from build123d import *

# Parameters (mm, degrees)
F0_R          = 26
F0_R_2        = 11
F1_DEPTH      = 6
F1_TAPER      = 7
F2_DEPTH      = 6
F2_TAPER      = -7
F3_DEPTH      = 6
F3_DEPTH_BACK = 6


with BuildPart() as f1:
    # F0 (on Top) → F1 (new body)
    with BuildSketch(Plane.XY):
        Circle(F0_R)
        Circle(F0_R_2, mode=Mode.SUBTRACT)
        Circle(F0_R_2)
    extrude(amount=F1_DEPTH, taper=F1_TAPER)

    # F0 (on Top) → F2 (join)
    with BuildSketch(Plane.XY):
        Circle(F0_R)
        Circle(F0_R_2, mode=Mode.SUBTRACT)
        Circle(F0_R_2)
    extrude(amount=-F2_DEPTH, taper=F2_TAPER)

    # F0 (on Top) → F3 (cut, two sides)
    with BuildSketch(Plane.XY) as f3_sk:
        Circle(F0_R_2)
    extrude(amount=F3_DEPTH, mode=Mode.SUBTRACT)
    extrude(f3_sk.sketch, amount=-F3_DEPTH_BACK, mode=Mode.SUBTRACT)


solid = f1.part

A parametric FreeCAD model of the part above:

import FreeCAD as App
import Part
import Sketcher
Q = App.Units.Quantity

doc = App.newDocument("Part")
params = doc.addObject("Spreadsheet::Sheet", "Params")
for row, (alias, value) in enumerate([
    ("sketch1_diameter", "52 mm"),
    ("pad1_length", "6 mm"),
    ("pad1_taper", "-7 deg"),
    ("sketch2_diameter", "52 mm"),
    ("pad2_length", "6 mm"),
    ("pad2_taper", "7 deg"),
    ("sketch3_diameter", "22 mm"),
], start=1):
    params.set(f"A{row}", alias)
    params.set(f"B{row}", "=" + value)
    params.setAlias(f"B{row}", alias)

body = doc.addObject("PartDesign::Body", "Body")

# Sketch on XY plane
sketch1 = doc.addObject("Sketcher::SketchObject", "Sketch")
body.addObject(sketch1)
sketch1.AttachmentSupport = (doc.XY_Plane, [""])
sketch1.MapMode = "FlatFace"
sketch1.addGeometry(Part.Circle(App.Vector(0, 0, 0), App.Vector(0, 0, 1), 26), False)
sketch1.addConstraint([
    Sketcher.Constraint("Coincident", 0, 3, -1, 1),
    Sketcher.Constraint("Diameter", 0, Q("52 mm")),
])
sketch1.setExpression("Constraints[1]", "Params.sketch1_diameter")
pad1 = doc.addObject("PartDesign::Pad", "Pad")
body.addObject(pad1)
pad1.Profile = sketch1
pad1.setExpression("Length", "Params.pad1_length")
pad1.setExpression("TaperAngle", "Params.pad1_taper")

# Sketch on XY plane
sketch2 = doc.addObject("Sketcher::SketchObject", "Sketch001")
body.addObject(sketch2)
sketch2.AttachmentSupport = (doc.XY_Plane, [""])
sketch2.MapMode = "FlatFace"
sketch2.addGeometry(Part.Circle(App.Vector(0, 0, 0), App.Vector(0, 0, 1), 26), False)
sketch2.addConstraint([
    Sketcher.Constraint("Coincident", 0, 3, -1, 1),
    Sketcher.Constraint("Diameter", 0, Q("52 mm")),
])
sketch2.setExpression("Constraints[1]", "Params.sketch2_diameter")
pad2 = doc.addObject("PartDesign::Pad", "Pad001")
body.addObject(pad2)
pad2.Profile = sketch2
pad2.setExpression("Length", "Params.pad2_length")
pad2.Reversed = True
pad2.setExpression("TaperAngle", "Params.pad2_taper")

# Sketch on XY plane
sketch3 = doc.addObject("Sketcher::SketchObject", "Sketch002")
body.addObject(sketch3)
sketch3.AttachmentSupport = (doc.XY_Plane, [""])
sketch3.MapMode = "FlatFace"
sketch3.addGeometry(Part.Circle(App.Vector(0, 0, 0), App.Vector(0, 0, 1), 11), False)
sketch3.addConstraint([
    Sketcher.Constraint("Coincident", 0, 3, -1, 1),
    Sketcher.Constraint("Diameter", 0, Q("22 mm")),
])
sketch3.setExpression("Constraints[1]", "Params.sketch3_diameter")
pocket1 = doc.addObject("PartDesign::Pocket", "Pocket")
body.addObject(pocket1)
pocket1.Profile = sketch3
pocket1.Type = "ThroughAll"
pocket1.Midplane = True

doc.recompute()
